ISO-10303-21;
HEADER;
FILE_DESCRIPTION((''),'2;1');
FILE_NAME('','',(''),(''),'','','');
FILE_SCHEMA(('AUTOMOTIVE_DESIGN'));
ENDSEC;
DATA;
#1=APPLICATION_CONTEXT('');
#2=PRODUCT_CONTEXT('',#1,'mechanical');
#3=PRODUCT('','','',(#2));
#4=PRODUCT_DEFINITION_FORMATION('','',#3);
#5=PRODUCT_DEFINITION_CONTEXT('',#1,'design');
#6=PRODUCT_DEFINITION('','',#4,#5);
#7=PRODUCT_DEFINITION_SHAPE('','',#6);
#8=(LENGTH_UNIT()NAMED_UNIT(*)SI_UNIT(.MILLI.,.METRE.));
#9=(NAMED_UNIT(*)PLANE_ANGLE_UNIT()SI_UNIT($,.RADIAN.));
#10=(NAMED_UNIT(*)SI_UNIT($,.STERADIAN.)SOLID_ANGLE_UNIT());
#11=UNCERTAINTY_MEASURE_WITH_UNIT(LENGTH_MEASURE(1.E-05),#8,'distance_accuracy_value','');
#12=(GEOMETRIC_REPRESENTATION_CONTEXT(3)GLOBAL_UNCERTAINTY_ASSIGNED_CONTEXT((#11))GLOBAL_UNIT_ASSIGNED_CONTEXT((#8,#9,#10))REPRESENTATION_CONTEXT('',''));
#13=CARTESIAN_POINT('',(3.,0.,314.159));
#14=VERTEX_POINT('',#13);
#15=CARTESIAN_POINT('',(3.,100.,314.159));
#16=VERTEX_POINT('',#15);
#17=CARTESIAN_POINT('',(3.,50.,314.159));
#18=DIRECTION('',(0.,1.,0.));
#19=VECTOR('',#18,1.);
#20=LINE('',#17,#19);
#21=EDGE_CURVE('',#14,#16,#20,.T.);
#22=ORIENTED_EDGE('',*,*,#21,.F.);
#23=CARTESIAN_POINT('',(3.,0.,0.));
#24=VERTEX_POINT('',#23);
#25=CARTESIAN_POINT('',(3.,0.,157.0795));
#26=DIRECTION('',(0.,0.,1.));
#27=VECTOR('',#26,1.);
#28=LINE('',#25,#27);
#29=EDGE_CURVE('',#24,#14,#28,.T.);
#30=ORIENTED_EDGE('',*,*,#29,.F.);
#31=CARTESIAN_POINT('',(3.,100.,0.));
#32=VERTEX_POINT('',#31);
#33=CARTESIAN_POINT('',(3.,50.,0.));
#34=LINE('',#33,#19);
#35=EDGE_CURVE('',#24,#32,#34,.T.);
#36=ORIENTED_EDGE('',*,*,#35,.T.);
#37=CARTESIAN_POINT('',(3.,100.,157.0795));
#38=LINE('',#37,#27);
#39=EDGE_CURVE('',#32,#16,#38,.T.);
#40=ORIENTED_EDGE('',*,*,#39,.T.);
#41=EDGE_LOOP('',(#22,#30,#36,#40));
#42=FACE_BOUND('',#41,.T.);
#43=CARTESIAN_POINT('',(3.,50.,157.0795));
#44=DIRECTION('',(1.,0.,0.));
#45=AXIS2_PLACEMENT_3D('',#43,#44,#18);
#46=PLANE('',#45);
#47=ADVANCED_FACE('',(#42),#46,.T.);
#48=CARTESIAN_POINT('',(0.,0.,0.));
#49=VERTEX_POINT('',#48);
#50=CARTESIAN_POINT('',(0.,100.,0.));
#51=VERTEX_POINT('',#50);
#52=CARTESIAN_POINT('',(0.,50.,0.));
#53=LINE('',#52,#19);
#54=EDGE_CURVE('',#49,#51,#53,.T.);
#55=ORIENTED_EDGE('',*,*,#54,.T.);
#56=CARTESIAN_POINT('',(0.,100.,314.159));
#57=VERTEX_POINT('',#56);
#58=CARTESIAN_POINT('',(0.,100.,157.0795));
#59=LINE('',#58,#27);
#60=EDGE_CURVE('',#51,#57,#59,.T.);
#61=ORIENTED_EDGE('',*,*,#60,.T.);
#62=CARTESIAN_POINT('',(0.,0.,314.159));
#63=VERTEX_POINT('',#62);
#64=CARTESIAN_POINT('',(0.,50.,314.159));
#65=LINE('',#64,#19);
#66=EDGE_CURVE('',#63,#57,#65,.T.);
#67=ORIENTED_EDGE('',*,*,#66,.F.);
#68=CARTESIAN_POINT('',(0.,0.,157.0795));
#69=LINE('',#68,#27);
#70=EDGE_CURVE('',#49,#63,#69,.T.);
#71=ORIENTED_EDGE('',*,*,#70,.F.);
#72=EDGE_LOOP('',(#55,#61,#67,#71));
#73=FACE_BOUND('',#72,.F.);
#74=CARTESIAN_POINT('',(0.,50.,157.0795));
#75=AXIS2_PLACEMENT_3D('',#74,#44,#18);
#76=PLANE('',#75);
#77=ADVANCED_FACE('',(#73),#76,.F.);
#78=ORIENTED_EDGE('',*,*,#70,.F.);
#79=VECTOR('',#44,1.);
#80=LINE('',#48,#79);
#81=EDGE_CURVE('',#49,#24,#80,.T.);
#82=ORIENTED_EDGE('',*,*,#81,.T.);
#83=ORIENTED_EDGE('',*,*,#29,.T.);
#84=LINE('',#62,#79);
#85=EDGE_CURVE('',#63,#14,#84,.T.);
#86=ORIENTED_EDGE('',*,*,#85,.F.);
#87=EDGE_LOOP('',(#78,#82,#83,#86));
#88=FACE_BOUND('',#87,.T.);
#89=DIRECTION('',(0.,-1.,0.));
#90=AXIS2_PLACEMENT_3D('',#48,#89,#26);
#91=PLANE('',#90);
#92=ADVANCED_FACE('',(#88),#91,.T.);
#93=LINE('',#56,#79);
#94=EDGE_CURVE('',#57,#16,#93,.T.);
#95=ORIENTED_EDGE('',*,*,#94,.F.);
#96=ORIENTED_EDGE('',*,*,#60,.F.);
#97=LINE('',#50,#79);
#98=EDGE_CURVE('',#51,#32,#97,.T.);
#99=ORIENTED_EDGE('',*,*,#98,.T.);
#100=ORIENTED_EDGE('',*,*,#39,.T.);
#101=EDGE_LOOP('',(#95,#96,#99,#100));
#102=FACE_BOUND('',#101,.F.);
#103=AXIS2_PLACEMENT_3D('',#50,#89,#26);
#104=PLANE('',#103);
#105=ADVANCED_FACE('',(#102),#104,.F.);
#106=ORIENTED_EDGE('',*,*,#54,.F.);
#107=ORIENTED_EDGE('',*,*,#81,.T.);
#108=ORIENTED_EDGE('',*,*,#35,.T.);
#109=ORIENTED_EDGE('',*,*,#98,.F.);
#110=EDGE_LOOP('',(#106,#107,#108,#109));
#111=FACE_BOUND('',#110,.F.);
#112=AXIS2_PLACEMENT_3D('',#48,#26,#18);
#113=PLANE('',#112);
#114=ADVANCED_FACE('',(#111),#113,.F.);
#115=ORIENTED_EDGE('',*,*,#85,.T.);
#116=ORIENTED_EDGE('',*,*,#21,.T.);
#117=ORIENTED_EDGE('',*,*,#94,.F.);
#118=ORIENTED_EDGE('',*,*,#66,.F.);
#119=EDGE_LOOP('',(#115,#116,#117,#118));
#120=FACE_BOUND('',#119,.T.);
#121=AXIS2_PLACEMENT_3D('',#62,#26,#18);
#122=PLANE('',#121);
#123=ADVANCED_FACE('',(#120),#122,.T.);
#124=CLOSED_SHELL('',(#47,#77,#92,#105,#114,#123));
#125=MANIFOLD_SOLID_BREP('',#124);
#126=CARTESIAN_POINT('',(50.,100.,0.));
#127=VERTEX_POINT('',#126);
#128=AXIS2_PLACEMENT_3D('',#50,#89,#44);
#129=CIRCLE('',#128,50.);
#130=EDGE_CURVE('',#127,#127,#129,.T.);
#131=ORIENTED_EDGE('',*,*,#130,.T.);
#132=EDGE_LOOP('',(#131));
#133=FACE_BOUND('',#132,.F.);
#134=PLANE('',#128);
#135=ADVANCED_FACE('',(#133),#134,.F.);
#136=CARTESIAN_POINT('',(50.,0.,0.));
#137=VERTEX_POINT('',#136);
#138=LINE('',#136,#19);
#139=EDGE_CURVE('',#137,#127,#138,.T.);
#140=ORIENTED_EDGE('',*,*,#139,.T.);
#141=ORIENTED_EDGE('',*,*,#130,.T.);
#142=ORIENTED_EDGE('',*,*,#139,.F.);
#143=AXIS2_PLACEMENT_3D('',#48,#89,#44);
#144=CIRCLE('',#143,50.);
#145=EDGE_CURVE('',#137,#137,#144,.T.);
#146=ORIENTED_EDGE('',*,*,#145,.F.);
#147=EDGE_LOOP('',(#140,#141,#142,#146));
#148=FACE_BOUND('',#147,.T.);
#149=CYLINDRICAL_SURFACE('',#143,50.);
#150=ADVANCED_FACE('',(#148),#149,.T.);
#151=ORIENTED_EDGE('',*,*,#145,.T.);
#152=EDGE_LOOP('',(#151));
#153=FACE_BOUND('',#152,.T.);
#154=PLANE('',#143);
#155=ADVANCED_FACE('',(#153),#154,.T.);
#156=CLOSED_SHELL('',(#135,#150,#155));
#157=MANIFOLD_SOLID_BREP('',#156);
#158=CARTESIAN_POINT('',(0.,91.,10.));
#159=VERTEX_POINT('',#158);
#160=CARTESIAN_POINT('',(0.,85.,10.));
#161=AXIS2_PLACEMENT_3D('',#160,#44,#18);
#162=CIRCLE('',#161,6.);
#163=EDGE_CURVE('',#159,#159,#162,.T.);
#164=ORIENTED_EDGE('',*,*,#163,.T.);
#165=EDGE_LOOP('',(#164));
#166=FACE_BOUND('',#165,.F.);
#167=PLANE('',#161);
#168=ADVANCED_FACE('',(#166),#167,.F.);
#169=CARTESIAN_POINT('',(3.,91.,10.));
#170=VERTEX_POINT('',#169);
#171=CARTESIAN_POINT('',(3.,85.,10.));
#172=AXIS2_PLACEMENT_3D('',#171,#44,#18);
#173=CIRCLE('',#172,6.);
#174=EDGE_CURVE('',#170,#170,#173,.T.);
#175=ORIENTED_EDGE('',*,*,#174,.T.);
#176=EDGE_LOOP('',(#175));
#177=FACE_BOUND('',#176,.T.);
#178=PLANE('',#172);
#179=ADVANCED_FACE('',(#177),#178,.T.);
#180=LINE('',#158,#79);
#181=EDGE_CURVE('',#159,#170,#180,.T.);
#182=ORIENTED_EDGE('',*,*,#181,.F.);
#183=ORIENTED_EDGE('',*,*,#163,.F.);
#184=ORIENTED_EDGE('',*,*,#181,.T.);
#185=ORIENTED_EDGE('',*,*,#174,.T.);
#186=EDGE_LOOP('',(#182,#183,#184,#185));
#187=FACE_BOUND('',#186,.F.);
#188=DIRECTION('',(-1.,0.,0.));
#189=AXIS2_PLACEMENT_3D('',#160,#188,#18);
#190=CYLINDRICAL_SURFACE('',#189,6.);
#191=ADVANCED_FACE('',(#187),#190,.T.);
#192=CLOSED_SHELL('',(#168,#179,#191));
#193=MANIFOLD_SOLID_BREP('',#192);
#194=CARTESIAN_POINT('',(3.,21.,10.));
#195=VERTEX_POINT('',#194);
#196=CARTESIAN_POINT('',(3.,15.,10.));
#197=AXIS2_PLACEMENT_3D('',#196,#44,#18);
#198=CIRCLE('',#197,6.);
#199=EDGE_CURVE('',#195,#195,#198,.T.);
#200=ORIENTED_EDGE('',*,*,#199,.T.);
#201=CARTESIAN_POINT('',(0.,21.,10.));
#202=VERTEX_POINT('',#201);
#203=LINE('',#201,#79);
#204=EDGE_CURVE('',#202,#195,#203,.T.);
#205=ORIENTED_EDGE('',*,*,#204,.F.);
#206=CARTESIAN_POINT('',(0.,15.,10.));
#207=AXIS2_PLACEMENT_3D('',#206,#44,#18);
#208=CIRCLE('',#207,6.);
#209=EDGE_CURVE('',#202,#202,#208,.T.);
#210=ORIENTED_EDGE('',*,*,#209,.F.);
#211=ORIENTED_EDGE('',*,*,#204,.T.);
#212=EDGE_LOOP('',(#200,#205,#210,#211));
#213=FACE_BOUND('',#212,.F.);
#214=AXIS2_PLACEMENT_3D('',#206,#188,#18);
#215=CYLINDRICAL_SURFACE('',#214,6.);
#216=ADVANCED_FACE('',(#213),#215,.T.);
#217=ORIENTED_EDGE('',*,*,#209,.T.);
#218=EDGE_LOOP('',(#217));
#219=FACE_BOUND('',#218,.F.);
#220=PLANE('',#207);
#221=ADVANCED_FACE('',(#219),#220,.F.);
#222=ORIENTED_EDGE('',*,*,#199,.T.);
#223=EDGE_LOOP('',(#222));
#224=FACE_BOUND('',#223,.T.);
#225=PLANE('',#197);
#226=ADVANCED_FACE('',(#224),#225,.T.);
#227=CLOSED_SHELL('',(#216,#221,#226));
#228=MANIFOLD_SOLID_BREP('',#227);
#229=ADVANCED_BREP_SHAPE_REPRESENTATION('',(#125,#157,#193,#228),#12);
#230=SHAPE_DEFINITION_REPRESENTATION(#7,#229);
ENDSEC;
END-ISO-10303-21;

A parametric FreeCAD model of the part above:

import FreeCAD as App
import Part
import Sketcher
Q = App.Units.Quantity

doc = App.newDocument("Part")
body = doc.addObject("PartDesign::Body", "Body")

sketch1 = body.newObject("Sketcher::SketchObject", "Sketch")
sketch1.AttachmentSupport = (doc.getObject("XZ_Plane"), [""])
sketch1.MapMode = "FlatFace"
sketch1.addGeometry(Part.Circle(App.Vector(0, 0, 0), App.Vector(0, 0, 1), 50), False)
sketch1.addConstraint([
    Sketcher.Constraint("Coincident", 0, 3, -1, 1),
    Sketcher.Constraint("Diameter", 0, Q("100 mm")),
])
pad1 = body.newObject("PartDesign::Pad", "Pad")
pad1.Profile = sketch1
pad1.Length = 100
pad1.Reversed = True
body2 = doc.addObject("PartDesign::Body", "Body001")

sketch2 = body2.newObject("Sketcher::SketchObject", "Sketch001")
sketch2.AttachmentSupport = (doc.getObject("YZ_Plane001"), [""])
sketch2.MapMode = "FlatFace"
sketch2.addGeometry([
    Part.LineSegment(App.Vector(0, 314, 0), App.Vector(0, 0, 0)),
    Part.LineSegment(App.Vector(0, 0, 0), App.Vector(100, 0, 0)),
    Part.LineSegment(App.Vector(100, 0, 0), App.Vector(100, 314, 0)),
    Part.LineSegment(App.Vector(100, 314, 0), App.Vector(0, 314, 0)),
], False)
sketch2.addConstraint([
    Sketcher.Constraint("Coincident", 0, 2, 1, 1),
    Sketcher.Constraint("Coincident", 1, 2, 2, 1),
    Sketcher.Constraint("Coincident", 2, 2, 3, 1),
    Sketcher.Constraint("Coincident", 3, 2, 0, 1),
    Sketcher.Constraint("Vertical", 0),
    Sketcher.Constraint("Horizontal", 1),
    Sketcher.Constraint("Vertical", 2),
    Sketcher.Constraint("Horizontal", 3),
    Sketcher.Constraint("Coincident", 0, 2, -1, 1),
    Sketcher.Constraint("DistanceX", 1, 1, 1, 2, Q("100 mm")),
    Sketcher.Constraint("DistanceY", 0, 2, 0, 1, Q("314.159 mm")),
])
pad2 = body2.newObject("PartDesign::Pad", "Pad001")
pad2.Profile = sketch2
pad2.Length = 3
body3 = doc.addObject("PartDesign::Body", "Body002")
body3.AllowCompound = True

sketch3 = body3.newObject("Sketcher::SketchObject", "Sketch002")
sketch3.AttachmentSupport = (doc.getObject("YZ_Plane002"), [""])
sketch3.MapMode = "FlatFace"
sketch3.addGeometry([
    Part.Circle(App.Vector(85, 10, 0), App.Vector(0, 0, 1), 6),
    Part.Circle(App.Vector(15, 10, 0), App.Vector(0, 0, 1), 6),
], False)
sketch3.addConstraint([
    Sketcher.Constraint("Equal", 0, 1),
    Sketcher.Constraint("Horizontal", 0, 3, 1, 3),
    Sketcher.Constraint("Diameter", 0, Q("12 mm")),
    Sketcher.Constraint("DistanceX", -1, 1, 0, 3, Q("85 mm")),
    Sketcher.Constraint("DistanceY", -1, 1, 0, 3, Q("10 mm")),
    Sketcher.Constraint("DistanceX", -1, 1, 1, 3, Q("15 mm")),
])
pad3 = body3.newObject("PartDesign::Pad", "Pad002")
pad3.Profile = sketch3
pad3.Length = 3

doc.recompute()
